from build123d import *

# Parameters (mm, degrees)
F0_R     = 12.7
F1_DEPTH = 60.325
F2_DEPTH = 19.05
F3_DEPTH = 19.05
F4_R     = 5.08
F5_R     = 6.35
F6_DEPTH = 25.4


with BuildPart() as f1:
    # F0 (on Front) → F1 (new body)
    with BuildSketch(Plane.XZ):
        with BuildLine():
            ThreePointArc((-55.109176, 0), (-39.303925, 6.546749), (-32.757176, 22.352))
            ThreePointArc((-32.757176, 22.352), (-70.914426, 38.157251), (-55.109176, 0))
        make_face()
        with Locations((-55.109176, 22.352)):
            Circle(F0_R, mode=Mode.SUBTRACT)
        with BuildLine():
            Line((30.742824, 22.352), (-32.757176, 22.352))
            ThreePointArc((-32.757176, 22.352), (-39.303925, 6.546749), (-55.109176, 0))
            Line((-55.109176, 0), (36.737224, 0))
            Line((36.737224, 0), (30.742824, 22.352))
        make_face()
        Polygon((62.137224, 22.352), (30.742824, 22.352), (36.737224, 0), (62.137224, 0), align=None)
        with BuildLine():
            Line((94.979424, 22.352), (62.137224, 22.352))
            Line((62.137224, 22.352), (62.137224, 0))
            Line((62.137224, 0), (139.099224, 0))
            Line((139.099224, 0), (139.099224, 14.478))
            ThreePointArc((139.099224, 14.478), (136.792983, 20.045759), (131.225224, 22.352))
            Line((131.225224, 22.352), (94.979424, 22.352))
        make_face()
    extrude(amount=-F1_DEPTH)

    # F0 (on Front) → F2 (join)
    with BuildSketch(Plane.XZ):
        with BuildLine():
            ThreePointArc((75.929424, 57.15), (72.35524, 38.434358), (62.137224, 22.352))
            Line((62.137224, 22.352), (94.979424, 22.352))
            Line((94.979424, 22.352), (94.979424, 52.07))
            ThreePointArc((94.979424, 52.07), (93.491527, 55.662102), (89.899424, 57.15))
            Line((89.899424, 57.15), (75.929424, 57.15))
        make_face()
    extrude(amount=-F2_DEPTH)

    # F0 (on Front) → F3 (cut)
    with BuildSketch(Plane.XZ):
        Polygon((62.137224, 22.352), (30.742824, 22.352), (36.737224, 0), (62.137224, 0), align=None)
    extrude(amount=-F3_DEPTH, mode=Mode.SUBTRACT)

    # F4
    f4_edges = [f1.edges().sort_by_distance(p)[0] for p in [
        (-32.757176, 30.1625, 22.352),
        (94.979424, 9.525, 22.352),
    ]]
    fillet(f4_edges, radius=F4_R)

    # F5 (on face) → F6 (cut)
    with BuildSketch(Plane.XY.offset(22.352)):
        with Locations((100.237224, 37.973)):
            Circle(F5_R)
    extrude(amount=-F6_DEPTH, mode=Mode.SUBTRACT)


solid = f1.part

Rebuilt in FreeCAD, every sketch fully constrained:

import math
import FreeCAD as App
import Part
import Sketcher
Q = App.Units.Quantity


def edges_at(feature, points):
    """Names of the edges that pass closest to the given points."""
    edges = feature.Shape.Edges
    near = lambda p: min(range(len(edges)), key=lambda i: edges[i].distToShape(Part.Vertex(*p))[0])
    return sorted({f"Edge{near(p) + 1}" for p in points})

doc = App.newDocument("Part")
body = doc.addObject("PartDesign::Body", "Body")

# Sketch on XZ plane
sketch1 = doc.addObject("Sketcher::SketchObject", "Sketch")
body.addObject(sketch1)
sketch1.AttachmentSupport = (doc.XZ_Plane, [""])
sketch1.MapMode = "FlatFace"
sketch1.addGeometry([
    Part.ArcOfCircle(Part.Circle(App.Vector(-55.109176, 22.352, 0), App.Vector(0, 0, 1), 22.352), math.radians(0), math.radians(270)),  # 0
    Part.LineSegment(App.Vector(-55.109176, 0, 0), App.Vector(139.099224, 0, 0)),  # 1
    Part.LineSegment(App.Vector(139.099224, 0, 0), App.Vector(139.099224, 14.478, 0)),  # 2
    Part.ArcOfCircle(Part.Circle(App.Vector(131.225225, 14.478001, 0), App.Vector(0, 0, 1), 7.873999), math.radians(-0.000005), math.radians(90.000005)),  # 3
    Part.LineSegment(App.Vector(131.225224, 22.352, 0), App.Vector(-32.757176, 22.352, 0)),  # 4
    Part.Circle(App.Vector(-55.109176, 22.352, 0), App.Vector(0, 0, 1), 12.7),  # 5
], False)
sketch1.addConstraint([
    Sketcher.Constraint("Tangent", 0, 2, 1, 1),
    Sketcher.Constraint("Coincident", 1, 2, 2, 1),
    Sketcher.Constraint("Tangent", 2, 2, 3, 1),
    Sketcher.Constraint("Tangent", 3, 2, 4, 1),
    Sketcher.Constraint("Coincident", 4, 2, 0, 1),
    Sketcher.Constraint("Horizontal", 1),
    Sketcher.Constraint("Vertical", 2),
    Sketcher.Constraint("Horizontal", 4),
    Sketcher.Constraint("Coincident", 5, 3, 0, 3),
    Sketcher.Constraint("PointOnObject", 0, 2, -1),
    Sketcher.Constraint("Horizontal", 5, 3, 3, 2),
    Sketcher.Constraint("Diameter", 5, Q("1 in")),
    Sketcher.Constraint("Radius", 0, Q("0.88 in")),
    Sketcher.Constraint("Radius", 3, Q("0.31 in")),
    Sketcher.Constraint("DistanceX", 1, 1, 1, 2, Q("7.646 in")),
    Sketcher.Constraint("DistanceX", 0, 3, -1, 1, Q("55.109176 mm")),
])
pad1 = doc.addObject("PartDesign::Pad", "Pad")
body.addObject(pad1)
pad1.Profile = sketch1
pad1.Length = Q("2.375 in")
pad1.Reversed = True

# Sketch on XZ plane
sketch2 = doc.addObject("Sketcher::SketchObject", "Sketch001")
body.addObject(sketch2)
sketch2.AttachmentSupport = (doc.XZ_Plane, [""])
sketch2.MapMode = "FlatFace"
sketch2.addGeometry([
    Part.ArcOfCircle(Part.Circle(App.Vector(25.12943, 57.152324, 0), App.Vector(0, 0, 1), 50.799994), math.radians(-43.239212), math.radians(-0.002622)),  # 0
    Part.LineSegment(App.Vector(62.137224, 22.352, 0), App.Vector(94.979424, 22.352, 0)),  # 1
    Part.LineSegment(App.Vector(94.979424, 22.352, 0), App.Vector(94.979424, 52.07, 0)),  # 2
    Part.ArcOfCircle(Part.Circle(App.Vector(89.899424, 52.07, 0), App.Vector(0, 0, 1), 5.08), math.radians(-0.000002), math.radians(90.000002)),  # 3
    Part.LineSegment(App.Vector(89.899424, 57.15, 0), App.Vector(75.929424, 57.15, 0)),  # 4
], False)
sketch2.addConstraint([
    Sketcher.Constraint("Coincident", 0, 1, 1, 1),
    Sketcher.Constraint("Coincident", 1, 2, 2, 1),
    Sketcher.Constraint("Tangent", 2, 2, 3, 1),
    Sketcher.Constraint("Tangent", 3, 2, 4, 1),
    Sketcher.Constraint("Coincident", 4, 2, 0, 2),
    Sketcher.Constraint("Horizontal", 1),
    Sketcher.Constraint("Vertical", 2),
    Sketcher.Constraint("Horizontal", 4),
    Sketcher.Constraint("Radius", 3, Q("0.2 in")),
    Sketcher.Constraint("DistanceX", 4, 2, 4, 1, Q("0.55 in")),
    Sketcher.Constraint("DistanceY", 2, 1, 2, 2, Q("1.17 in")),
    Sketcher.Constraint("DistanceX", 1, 1, 1, 2, Q("1.293 in")),
    Sketcher.Constraint("DistanceY", -1, 1, 3, 3, Q("2.05 in")),
    Sketcher.Constraint("Radius", 0, Q("50.799994 mm")),
    Sketcher.Constraint("DistanceX", -1, 1, 0, 3, Q("25.12943 mm")),
])
pad2 = doc.addObject("PartDesign::Pad", "Pad001")
body.addObject(pad2)
pad2.Profile = sketch2
pad2.Length = Q("0.75 in")
pad2.Reversed = True

# Sketch on XZ plane
sketch3 = doc.addObject("Sketcher::SketchObject", "Sketch002")
body.addObject(sketch3)
sketch3.AttachmentSupport = (doc.XZ_Plane, [""])
sketch3.MapMode = "FlatFace"
sketch3.addGeometry([
    Part.LineSegment(App.Vector(62.137224, 22.352, 0), App.Vector(30.742824, 22.352, 0)),
    Part.LineSegment(App.Vector(30.742824, 22.352, 0), App.Vector(36.737224, 0, 0)),
    Part.LineSegment(App.Vector(36.737224, 0, 0), App.Vector(62.137224, 0, 0)),
    Part.LineSegment(App.Vector(62.137224, 0, 0), App.Vector(62.137224, 22.352, 0)),
], False)
sketch3.addConstraint([
    Sketcher.Constraint("Coincident", 0, 2, 1, 1),
    Sketcher.Constraint("Coincident", 1, 2, 2, 1),
    Sketcher.Constraint("Coincident", 2, 2, 3, 1),
    Sketcher.Constraint("Coincident", 3, 2, 0, 1),
    Sketcher.Constraint("Horizontal", 0),
    Sketcher.Constraint("Horizontal", 2),
    Sketcher.Constraint("Vertical", 3),
    Sketcher.Constraint("PointOnObject", 1, 2, -1),
    Sketcher.Constraint("DistanceX", 2, 1, 2, 2, Q("1 in")),
    Sketcher.Constraint("DistanceY", 3, 1, 3, 2, Q("0.88 in")),
    Sketcher.Constraint("DistanceX", 0, 2, 0, 1, Q("1.236 in")),
    Sketcher.Constraint("DistanceX", -1, 1, 0, 2, Q("30.742824 mm")),
])
pocket1 = doc.addObject("PartDesign::Pocket", "Pocket")
body.addObject(pocket1)
pocket1.Profile = sketch3
pocket1.Length = Q("0.75 in")
doc.recompute()

fillet = doc.addObject("PartDesign::Fillet", "Fillet")
body.addObject(fillet)
fillet.Base = (pocket1, edges_at(pocket1, [(-32.757, 30.163, 22.352), (94.979, 9.525, 22.352)]))
fillet.Radius = Q("0.2 in")

# Sketch on XY plane
sketch4 = doc.addObject("Sketcher::SketchObject", "Sketch003")
body.addObject(sketch4)
sketch4.AttachmentSupport = (doc.XY_Plane, [""])
sketch4.MapMode = "FlatFace"
sketch4.AttachmentOffset = App.Placement(App.Vector(0, 0, 0.88 * 25.4), App.Rotation())
sketch4.addGeometry(Part.Circle(App.Vector(100.237224, 37.973, 0), App.Vector(0, 0, 1), 6.35), False)
sketch4.addConstraint([
    Sketcher.Constraint("Diameter", 0, Q("0.5 in")),
    Sketcher.Constraint("DistanceY", -1, 1, 0, 3, Q("1.495 in")),
    Sketcher.Constraint("DistanceX", -1, 1, 0, 3, Q("100.237224 mm")),
])
pocket2 = doc.addObject("PartDesign::Pocket", "Pocket001")
body.addObject(pocket2)
pocket2.Profile = sketch4
pocket2.Length = Q("1 in")

doc.recompute()
